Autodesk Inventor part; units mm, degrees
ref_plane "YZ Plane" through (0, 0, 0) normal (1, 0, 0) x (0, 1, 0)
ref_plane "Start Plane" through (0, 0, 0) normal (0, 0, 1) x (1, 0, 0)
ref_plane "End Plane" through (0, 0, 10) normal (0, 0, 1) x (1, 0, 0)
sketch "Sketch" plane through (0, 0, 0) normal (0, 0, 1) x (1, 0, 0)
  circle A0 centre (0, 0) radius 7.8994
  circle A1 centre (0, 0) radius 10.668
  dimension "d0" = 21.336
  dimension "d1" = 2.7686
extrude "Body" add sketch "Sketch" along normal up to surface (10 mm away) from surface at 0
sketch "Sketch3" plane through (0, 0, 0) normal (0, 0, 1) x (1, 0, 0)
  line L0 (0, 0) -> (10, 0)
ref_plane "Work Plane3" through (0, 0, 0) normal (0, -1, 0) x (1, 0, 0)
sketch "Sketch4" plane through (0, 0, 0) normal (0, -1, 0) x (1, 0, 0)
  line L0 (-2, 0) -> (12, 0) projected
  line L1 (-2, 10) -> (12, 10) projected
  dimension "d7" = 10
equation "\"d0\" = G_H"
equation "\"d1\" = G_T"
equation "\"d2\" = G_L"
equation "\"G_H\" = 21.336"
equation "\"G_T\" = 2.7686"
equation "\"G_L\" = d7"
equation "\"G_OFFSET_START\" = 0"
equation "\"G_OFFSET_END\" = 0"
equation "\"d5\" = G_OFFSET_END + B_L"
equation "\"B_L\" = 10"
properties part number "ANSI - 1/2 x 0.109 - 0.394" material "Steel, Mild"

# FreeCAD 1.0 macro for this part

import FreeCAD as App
import Part
import Sketcher

V = App.Vector
Q = App.Units.Quantity

doc = App.newDocument("Part")
params = doc.addObject("Spreadsheet::Sheet", "Params")
for row, (alias, value) in enumerate([
    ("sketch1_diameter", "0.84 in"),
    ("sketch1_diameter2", "0.622 in"),
    ("pad1_length", "0.3937008 in"),
], start=1):
    params.set(f"A{row}", alias)
    params.set(f"B{row}", "=" + value)
    params.setAlias(f"B{row}", alias)

body = doc.addObject("PartDesign::Body", "Body")

# Sketch on XY plane
sketch1 = body.newObject("Sketcher::SketchObject", "Sketch")
sketch1.AttachmentSupport = (doc.getObject("XY_Plane"), [""])
sketch1.MapMode = "FlatFace"
sketch1.addGeometry([
    Part.Circle(V(0, 0, 0), V(0, 0, 1), 11),
    Part.Circle(V(0, 0, 0), V(0, 0, 1), 8),
], False)
sketch1.addConstraint([
    Sketcher.Constraint("Coincident", 0, 3, -1, 1),
    Sketcher.Constraint("Coincident", 1, 3, -1, 1),
    Sketcher.Constraint("Diameter", 0, Q("0.84 in")),
    Sketcher.Constraint("Diameter", 1, Q("0.622 in")),
])
sketch1.setExpression("Constraints[2]", "Params.sketch1_diameter")
sketch1.setExpression("Constraints[3]", "Params.sketch1_diameter2")
pad1 = body.newObject("PartDesign::Pad", "Pad")
pad1.Profile = sketch1
pad1.setExpression("Length", "Params.pad1_length")

doc.recompute()
